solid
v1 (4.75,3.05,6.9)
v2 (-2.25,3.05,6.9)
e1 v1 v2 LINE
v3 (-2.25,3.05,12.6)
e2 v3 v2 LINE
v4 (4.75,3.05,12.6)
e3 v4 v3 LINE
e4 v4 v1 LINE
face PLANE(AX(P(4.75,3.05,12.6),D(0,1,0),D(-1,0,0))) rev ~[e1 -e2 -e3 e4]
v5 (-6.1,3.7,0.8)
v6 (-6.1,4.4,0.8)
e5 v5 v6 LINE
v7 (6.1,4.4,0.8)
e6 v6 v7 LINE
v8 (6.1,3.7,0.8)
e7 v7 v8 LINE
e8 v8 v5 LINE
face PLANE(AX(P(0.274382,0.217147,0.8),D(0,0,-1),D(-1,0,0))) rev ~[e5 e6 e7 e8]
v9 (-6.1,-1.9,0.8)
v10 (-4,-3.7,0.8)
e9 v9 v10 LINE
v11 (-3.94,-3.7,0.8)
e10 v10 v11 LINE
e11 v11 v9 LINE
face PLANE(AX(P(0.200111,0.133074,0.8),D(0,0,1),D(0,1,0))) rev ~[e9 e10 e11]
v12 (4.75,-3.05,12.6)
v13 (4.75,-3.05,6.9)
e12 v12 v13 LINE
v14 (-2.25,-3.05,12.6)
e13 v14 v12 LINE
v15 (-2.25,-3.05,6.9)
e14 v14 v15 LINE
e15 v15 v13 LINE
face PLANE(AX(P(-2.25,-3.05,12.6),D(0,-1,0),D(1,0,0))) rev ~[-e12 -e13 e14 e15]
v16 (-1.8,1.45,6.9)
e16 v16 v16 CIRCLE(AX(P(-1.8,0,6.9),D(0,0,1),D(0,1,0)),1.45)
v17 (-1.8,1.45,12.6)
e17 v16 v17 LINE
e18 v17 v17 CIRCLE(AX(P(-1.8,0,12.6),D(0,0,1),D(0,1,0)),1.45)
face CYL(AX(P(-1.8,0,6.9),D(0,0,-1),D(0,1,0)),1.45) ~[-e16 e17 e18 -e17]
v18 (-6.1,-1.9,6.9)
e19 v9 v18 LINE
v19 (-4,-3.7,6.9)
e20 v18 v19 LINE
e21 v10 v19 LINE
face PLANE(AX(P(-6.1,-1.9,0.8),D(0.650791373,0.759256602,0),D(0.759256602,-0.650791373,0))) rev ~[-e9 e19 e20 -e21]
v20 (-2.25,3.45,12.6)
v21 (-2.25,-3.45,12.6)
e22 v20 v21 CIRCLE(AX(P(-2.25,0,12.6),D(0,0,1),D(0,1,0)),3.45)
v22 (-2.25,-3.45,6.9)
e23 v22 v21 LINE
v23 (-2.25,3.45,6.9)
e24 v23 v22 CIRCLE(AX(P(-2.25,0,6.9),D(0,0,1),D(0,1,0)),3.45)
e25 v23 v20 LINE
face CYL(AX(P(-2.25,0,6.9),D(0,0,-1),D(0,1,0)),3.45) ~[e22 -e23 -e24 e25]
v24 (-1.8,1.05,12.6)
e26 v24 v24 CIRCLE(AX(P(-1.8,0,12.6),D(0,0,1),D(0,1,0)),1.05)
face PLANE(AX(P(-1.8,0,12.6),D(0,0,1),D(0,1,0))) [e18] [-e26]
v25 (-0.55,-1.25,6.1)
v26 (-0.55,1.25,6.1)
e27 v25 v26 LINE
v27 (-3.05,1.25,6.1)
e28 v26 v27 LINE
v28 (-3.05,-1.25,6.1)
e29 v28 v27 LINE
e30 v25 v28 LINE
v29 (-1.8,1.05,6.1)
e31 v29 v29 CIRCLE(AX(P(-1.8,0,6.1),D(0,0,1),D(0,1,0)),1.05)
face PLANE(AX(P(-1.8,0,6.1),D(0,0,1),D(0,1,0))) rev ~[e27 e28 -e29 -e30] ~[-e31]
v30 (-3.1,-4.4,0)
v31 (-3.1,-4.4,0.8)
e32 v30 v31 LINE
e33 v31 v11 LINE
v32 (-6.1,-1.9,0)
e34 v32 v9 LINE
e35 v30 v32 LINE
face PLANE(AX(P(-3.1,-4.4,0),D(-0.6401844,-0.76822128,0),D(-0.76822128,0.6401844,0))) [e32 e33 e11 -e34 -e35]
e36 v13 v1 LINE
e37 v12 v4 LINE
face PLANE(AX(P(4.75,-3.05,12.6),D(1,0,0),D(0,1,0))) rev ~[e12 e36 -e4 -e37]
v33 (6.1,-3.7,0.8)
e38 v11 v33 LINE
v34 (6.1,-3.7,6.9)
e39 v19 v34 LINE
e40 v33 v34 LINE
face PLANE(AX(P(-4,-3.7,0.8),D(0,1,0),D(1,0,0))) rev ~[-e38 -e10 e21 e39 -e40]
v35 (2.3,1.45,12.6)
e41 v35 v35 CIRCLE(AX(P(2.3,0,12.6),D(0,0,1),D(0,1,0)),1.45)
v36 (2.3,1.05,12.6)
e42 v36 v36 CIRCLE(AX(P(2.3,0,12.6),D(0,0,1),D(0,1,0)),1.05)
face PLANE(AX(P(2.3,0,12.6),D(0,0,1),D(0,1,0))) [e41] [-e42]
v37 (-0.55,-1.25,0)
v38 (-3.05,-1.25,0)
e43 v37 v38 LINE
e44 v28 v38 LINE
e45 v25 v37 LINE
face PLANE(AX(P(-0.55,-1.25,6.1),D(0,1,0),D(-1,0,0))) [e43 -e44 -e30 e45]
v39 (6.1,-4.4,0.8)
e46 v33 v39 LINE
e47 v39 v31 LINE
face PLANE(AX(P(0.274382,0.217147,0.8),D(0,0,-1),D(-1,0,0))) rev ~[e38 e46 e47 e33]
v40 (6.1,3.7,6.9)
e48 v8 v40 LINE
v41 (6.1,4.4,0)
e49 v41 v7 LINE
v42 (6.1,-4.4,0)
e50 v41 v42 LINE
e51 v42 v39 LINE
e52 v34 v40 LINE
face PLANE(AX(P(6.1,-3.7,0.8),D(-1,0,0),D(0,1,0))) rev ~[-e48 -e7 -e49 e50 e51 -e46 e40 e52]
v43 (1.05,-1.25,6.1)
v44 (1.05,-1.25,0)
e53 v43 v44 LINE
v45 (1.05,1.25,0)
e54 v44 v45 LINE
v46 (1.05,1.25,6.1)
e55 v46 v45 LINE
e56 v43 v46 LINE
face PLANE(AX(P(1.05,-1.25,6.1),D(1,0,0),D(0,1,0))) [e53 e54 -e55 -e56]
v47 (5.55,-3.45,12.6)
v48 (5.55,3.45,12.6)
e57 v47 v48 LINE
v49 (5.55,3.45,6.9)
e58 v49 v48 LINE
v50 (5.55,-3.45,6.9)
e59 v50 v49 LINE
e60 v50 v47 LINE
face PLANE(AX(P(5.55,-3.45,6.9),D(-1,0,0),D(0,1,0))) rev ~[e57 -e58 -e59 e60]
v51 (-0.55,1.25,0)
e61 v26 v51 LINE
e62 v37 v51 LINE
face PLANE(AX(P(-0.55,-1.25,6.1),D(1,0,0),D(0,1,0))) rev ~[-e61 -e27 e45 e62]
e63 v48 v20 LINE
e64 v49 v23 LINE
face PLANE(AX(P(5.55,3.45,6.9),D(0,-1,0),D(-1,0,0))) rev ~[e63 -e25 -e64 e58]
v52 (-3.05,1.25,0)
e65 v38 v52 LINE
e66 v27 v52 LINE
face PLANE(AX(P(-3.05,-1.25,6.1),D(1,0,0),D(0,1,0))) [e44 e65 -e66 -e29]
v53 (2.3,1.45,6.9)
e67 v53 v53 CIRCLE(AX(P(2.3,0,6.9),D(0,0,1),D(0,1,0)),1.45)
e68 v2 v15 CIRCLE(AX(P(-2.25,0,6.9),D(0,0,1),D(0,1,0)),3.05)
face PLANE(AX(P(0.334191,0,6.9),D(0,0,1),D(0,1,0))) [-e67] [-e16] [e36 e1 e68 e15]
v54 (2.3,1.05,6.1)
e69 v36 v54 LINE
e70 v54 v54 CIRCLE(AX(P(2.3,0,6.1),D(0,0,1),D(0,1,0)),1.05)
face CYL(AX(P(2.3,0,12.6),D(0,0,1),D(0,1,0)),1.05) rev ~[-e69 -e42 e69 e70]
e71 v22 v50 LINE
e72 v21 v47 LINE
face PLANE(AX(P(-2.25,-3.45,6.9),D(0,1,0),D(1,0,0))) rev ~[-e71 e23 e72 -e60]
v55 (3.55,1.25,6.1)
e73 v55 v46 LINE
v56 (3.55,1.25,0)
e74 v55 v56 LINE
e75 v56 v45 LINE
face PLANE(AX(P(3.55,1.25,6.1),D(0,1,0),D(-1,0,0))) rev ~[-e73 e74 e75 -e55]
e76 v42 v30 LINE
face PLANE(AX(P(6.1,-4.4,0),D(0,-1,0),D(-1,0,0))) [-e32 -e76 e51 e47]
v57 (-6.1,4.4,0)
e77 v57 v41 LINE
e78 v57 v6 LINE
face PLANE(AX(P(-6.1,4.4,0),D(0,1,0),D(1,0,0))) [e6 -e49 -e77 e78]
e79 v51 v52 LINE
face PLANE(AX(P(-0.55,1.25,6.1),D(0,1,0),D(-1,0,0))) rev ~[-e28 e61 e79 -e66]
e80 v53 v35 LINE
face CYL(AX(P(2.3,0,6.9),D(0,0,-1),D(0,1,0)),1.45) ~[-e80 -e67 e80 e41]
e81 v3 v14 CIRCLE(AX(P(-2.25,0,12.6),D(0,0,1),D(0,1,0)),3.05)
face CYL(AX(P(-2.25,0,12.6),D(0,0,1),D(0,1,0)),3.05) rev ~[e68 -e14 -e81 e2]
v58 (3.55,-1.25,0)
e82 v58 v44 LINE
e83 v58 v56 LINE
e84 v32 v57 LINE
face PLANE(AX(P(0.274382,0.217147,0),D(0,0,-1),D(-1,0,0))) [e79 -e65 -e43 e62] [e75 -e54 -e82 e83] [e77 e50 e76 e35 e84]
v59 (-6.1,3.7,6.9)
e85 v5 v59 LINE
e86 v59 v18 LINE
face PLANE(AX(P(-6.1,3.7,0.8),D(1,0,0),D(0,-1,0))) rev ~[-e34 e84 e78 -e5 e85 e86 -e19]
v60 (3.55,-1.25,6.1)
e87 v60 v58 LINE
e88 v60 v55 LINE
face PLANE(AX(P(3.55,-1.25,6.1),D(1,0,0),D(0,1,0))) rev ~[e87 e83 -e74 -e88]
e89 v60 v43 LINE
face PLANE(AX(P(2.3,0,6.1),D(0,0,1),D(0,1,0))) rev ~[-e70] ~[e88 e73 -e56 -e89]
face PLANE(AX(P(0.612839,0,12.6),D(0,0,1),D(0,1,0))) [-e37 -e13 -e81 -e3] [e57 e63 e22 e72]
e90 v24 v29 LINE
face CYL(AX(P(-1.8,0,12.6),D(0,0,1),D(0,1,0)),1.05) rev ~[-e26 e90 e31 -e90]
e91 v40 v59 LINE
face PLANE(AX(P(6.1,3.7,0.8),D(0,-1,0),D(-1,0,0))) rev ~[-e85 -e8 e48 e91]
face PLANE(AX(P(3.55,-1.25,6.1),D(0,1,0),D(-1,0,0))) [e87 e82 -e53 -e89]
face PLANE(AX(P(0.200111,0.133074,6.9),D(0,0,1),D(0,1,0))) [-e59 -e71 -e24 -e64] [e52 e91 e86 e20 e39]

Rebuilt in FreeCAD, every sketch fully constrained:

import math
import FreeCAD as App
import Part
import Sketcher

V = App.Vector
Q = App.Units.Quantity


def add_polygon(sketch, points):
    """Adds a closed chain of lines whose ends are joined by coincident constraints."""
    first, n = sketch.GeometryCount, len(points)
    for a, b in zip(points, points[1:] + points[:1]):
        sketch.addGeometry(Part.LineSegment(App.Vector(*a, 0), App.Vector(*b, 0)), False)
    for i in range(n):
        sketch.addConstraint(Sketcher.Constraint("Coincident", first + i, 2, first + (i + 1) % n, 1))

doc = App.newDocument("Part")
body = doc.addObject("PartDesign::Body", "Body")

# Sketch on XY plane
sketch1 = body.newObject("Sketcher::SketchObject", "Sketch")
sketch1.AttachmentSupport = (doc.getObject("XY_Plane"), [""])
sketch1.MapMode = "FlatFace"
add_polygon(sketch1, [(6.1, 4.4), (-6.1, 4.4), (-6.1, -1.9), (-3.1, -4.4), (6.1, -4.4)])  # lines 0-4
sketch1.addConstraint(Sketcher.Constraint("Horizontal", 0))
sketch1.addConstraint(Sketcher.Constraint("Vertical", 1))
sketch1.addConstraint(Sketcher.Constraint("Horizontal", 3))
sketch1.addConstraint(Sketcher.Constraint("Vertical", 4))
sketch1.addConstraint(Sketcher.Constraint("Symmetric", 0, 2, 3, 2, -1, 1))
sketch1.addConstraint(Sketcher.Constraint("DistanceX", 0, 2, 0, 1, Q("12.2 mm")))
sketch1.addConstraint(Sketcher.Constraint("DistanceX", 3, 1, 3, 2, Q("9.2 mm")))
sketch1.addConstraint(Sketcher.Constraint("DistanceY", 1, 2, 1, 1, Q("6.3 mm")))
sketch1.addConstraint(Sketcher.Constraint("DistanceY", 4, 1, 4, 2, Q("8.8 mm")))
pad1 = body.newObject("PartDesign::Pad", "Pad")
pad1.Profile = sketch1
pad1.Length = 0.8

# Sketch on XY plane
sketch2 = body.newObject("Sketcher::SketchObject", "Sketch001")
sketch2.AttachmentSupport = (doc.getObject("XY_Plane"), [""])
sketch2.MapMode = "FlatFace"
sketch2.AttachmentOffset = App.Placement(V(0, 0, 0.8), App.Rotation())
add_polygon(sketch2, [(6.1, 3.7), (-6.1, 3.7), (-6.1, -1.9), (-4, -3.7), (6.1, -3.7)])  # lines 0-4
sketch2.addConstraint(Sketcher.Constraint("Horizontal", 0))
sketch2.addConstraint(Sketcher.Constraint("Vertical", 1))
sketch2.addConstraint(Sketcher.Constraint("Horizontal", 3))
sketch2.addConstraint(Sketcher.Constraint("Vertical", 4))
sketch2.addConstraint(Sketcher.Constraint("Symmetric", 0, 2, 3, 2, -1, 1))
sketch2.addConstraint(Sketcher.Constraint("DistanceX", 0, 2, 0, 1, Q("12.2 mm")))
sketch2.addConstraint(Sketcher.Constraint("DistanceX", 3, 1, 3, 2, Q("10.1 mm")))
sketch2.addConstraint(Sketcher.Constraint("DistanceY", 1, 2, 1, 1, Q("5.6 mm")))
sketch2.addConstraint(Sketcher.Constraint("DistanceY", 4, 1, 4, 2, Q("7.4 mm")))
pad2 = body.newObject("PartDesign::Pad", "Pad001")
pad2.Profile = sketch2
pad2.Length = 6.1

# Sketch on XY plane
sketch3 = body.newObject("Sketcher::SketchObject", "Sketch002")
sketch3.AttachmentSupport = (doc.getObject("XY_Plane"), [""])
sketch3.MapMode = "FlatFace"
sketch3.AttachmentOffset = App.Placement(V(0, 0, 6.9), App.Rotation())
sketch3.addGeometry(Part.LineSegment(V(5.55, 3.45, 0), V(-2.25, 3.45, 0)), False)
sketch3.addGeometry(Part.ArcOfCircle(Part.Circle(V(-2.25, 0, 0), V(0, 0, 1), 3.45), math.radians(90), math.radians(270)), False)
sketch3.addGeometry(Part.LineSegment(V(-2.25, -3.45, 0), V(5.55, -3.45, 0)), False)
sketch3.addGeometry(Part.LineSegment(V(5.55, -3.45, 0), V(5.55, 3.45, 0)), False)
sketch3.addConstraint(Sketcher.Constraint("Tangent", 0, 2, 1, 1))
sketch3.addConstraint(Sketcher.Constraint("Tangent", 1, 2, 2, 1))
sketch3.addConstraint(Sketcher.Constraint("Coincident", 2, 2, 3, 1))
sketch3.addConstraint(Sketcher.Constraint("Coincident", 3, 2, 0, 1))
sketch3.addConstraint(Sketcher.Constraint("Horizontal", 0))
sketch3.addConstraint(Sketcher.Constraint("Horizontal", 2))
sketch3.addConstraint(Sketcher.Constraint("Vertical", 3))
sketch3.addConstraint(Sketcher.Constraint("PointOnObject", 1, 3, -1))
sketch3.addConstraint(Sketcher.Constraint("Radius", 1, Q("3.45 mm")))
sketch3.addConstraint(Sketcher.Constraint("DistanceX", 0, 2, 0, 1, Q("7.8 mm")))
sketch3.addConstraint(Sketcher.Constraint("DistanceX", 1, 3, -1, 1, Q("2.25 mm")))
pad3 = body.newObject("PartDesign::Pad", "Pad002")
pad3.Profile = sketch3
pad3.Length = 5.7

# Sketch on XY plane
sketch4 = body.newObject("Sketcher::SketchObject", "Sketch003")
sketch4.AttachmentSupport = (doc.getObject("XY_Plane"), [""])
sketch4.MapMode = "FlatFace"
sketch4.AttachmentOffset = App.Placement(V(0, 0, 12.6), App.Rotation())
sketch4.addGeometry(Part.LineSegment(V(4.75, 3.05, 0), V(-2.25, 3.05, 0)), False)
sketch4.addGeometry(Part.ArcOfCircle(Part.Circle(V(-2.25, 0, 0), V(0, 0, 1), 3.05), math.radians(90), math.radians(270)), False)
sketch4.addGeometry(Part.LineSegment(V(-2.25, -3.05, 0), V(4.75, -3.05, 0)), False)
sketch4.addGeometry(Part.LineSegment(V(4.75, -3.05, 0), V(4.75, 3.05, 0)), False)
sketch4.addConstraint(Sketcher.Constraint("Tangent", 0, 2, 1, 1))
sketch4.addConstraint(Sketcher.Constraint("Tangent", 1, 2, 2, 1))
sketch4.addConstraint(Sketcher.Constraint("Coincident", 2, 2, 3, 1))
sketch4.addConstraint(Sketcher.Constraint("Coincident", 3, 2, 0, 1))
sketch4.addConstraint(Sketcher.Constraint("Horizontal", 0))
sketch4.addConstraint(Sketcher.Constraint("Horizontal", 2))
sketch4.addConstraint(Sketcher.Constraint("Vertical", 3))
sketch4.addConstraint(Sketcher.Constraint("PointOnObject", 1, 3, -1))
sketch4.addConstraint(Sketcher.Constraint("DistanceX", 0, 2, 0, 1, Q("7 mm")))
sketch4.addConstraint(Sketcher.Constraint("Radius", 1, Q("3.05 mm")))
sketch4.addConstraint(Sketcher.Constraint("DistanceX", 1, 3, -1, 1, Q("2.25 mm")))
pocket1 = body.newObject("PartDesign::Pocket", "Pocket")
pocket1.Profile = sketch4
pocket1.Length = 5.7

# Sketch on XY plane
sketch5 = body.newObject("Sketcher::SketchObject", "Sketch004")
sketch5.AttachmentSupport = (doc.getObject("XY_Plane"), [""])
sketch5.MapMode = "FlatFace"
sketch5.AttachmentOffset = App.Placement(V(0, 0, 6.9), App.Rotation())
sketch5.addGeometry(Part.Circle(V(2.3, 0, 0), V(0, 0, 1), 1.45), False)
sketch5.addGeometry(Part.Circle(V(-1.8, 0, 0), V(0, 0, 1), 1.45), False)
sketch5.addConstraint(Sketcher.Constraint("Equal", 0, 1))
sketch5.addConstraint(Sketcher.Constraint("PointOnObject", 0, 3, -1))
sketch5.addConstraint(Sketcher.Constraint("PointOnObject", 1, 3, -1))
sketch5.addConstraint(Sketcher.Constraint("Diameter", 0, Q("2.9 mm")))
sketch5.addConstraint(Sketcher.Constraint("DistanceX", -1, 1, 0, 3, Q("2.3 mm")))
sketch5.addConstraint(Sketcher.Constraint("DistanceX", 1, 3, -1, 1, Q("1.8 mm")))
pad4 = body.newObject("PartDesign::Pad", "Pad003")
pad4.Profile = sketch5
pad4.Length = 5.7

# Sketch on XY plane
sketch6 = body.newObject("Sketcher::SketchObject", "Sketch005")
sketch6.AttachmentSupport = (doc.getObject("XY_Plane"), [""])
sketch6.MapMode = "FlatFace"
sketch6.AttachmentOffset = App.Placement(V(0, 0, 12.6), App.Rotation())
sketch6.addGeometry(Part.Circle(V(-1.8, 0, 0), V(0, 0, 1), 1.05), False)
sketch6.addGeometry(Part.Circle(V(2.3, 0, 0), V(0, 0, 1), 1.05), False)
sketch6.addConstraint(Sketcher.Constraint("Equal", 0, 1))
sketch6.addConstraint(Sketcher.Constraint("PointOnObject", 0, 3, -1))
sketch6.addConstraint(Sketcher.Constraint("PointOnObject", 1, 3, -1))
sketch6.addConstraint(Sketcher.Constraint("Diameter", 0, Q("2.1 mm")))
sketch6.addConstraint(Sketcher.Constraint("DistanceX", 0, 3, -1, 1, Q("1.8 mm")))
sketch6.addConstraint(Sketcher.Constraint("DistanceX", -1, 1, 1, 3, Q("2.3 mm")))
pocket2 = body.newObject("PartDesign::Pocket", "Pocket001")
pocket2.Profile = sketch6
pocket2.Length = 12.6

# Sketch on XY plane
sketch7 = body.newObject("Sketcher::SketchObject", "Sketch006")
sketch7.AttachmentSupport = (doc.getObject("XY_Plane"), [""])
sketch7.MapMode = "FlatFace"
sketch7.AttachmentOffset = App.Placement(V(0, 0, 6.1), App.Rotation())
add_polygon(sketch7, [(1.05, -1.25), (3.55, -1.25), (3.55, 1.25), (1.05, 1.25)])  # lines 0-3
add_polygon(sketch7, [(-3.05, -1.25), (-0.55, -1.25), (-0.55, 1.25), (-3.05, 1.25)])  # lines 4-7
sketch7.addConstraint(Sketcher.Constraint("Horizontal", 0))
sketch7.addConstraint(Sketcher.Constraint("Vertical", 1))
sketch7.addConstraint(Sketcher.Constraint("Horizontal", 2))
sketch7.addConstraint(Sketcher.Constraint("Vertical", 3))
sketch7.addConstraint(Sketcher.Constraint("Horizontal", 4))
sketch7.addConstraint(Sketcher.Constraint("Vertical", 5))
sketch7.addConstraint(Sketcher.Constraint("Horizontal", 6))
sketch7.addConstraint(Sketcher.Constraint("Vertical", 7))
sketch7.addConstraint(Sketcher.Constraint("Horizontal", 3, 2, 4, 2))
sketch7.addConstraint(Sketcher.Constraint("Horizontal", 2, 2, 5, 2))
sketch7.addConstraint(Sketcher.Constraint("Equal", 2, 4))
sketch7.addConstraint(Sketcher.Constraint("Equal", 6, 1))
sketch7.addConstraint(Sketcher.Constraint("DistanceX", 0, 1, 0, 2, Q("2.5 mm")))
sketch7.addConstraint(Sketcher.Constraint("DistanceX", 4, 2, 3, 2, Q("1.6 mm")))
sketch7.addConstraint(Sketcher.Constraint("DistanceX", -1, 1, 0, 2, Q("3.55 mm")))
sketch7.addConstraint(Sketcher.Constraint("DistanceY", 0, 2, -1, 1, Q("1.25 mm")))
pocket3 = body.newObject("PartDesign::Pocket", "Pocket002")
pocket3.Profile = sketch7
pocket3.Length = 6.1

doc.recompute()
